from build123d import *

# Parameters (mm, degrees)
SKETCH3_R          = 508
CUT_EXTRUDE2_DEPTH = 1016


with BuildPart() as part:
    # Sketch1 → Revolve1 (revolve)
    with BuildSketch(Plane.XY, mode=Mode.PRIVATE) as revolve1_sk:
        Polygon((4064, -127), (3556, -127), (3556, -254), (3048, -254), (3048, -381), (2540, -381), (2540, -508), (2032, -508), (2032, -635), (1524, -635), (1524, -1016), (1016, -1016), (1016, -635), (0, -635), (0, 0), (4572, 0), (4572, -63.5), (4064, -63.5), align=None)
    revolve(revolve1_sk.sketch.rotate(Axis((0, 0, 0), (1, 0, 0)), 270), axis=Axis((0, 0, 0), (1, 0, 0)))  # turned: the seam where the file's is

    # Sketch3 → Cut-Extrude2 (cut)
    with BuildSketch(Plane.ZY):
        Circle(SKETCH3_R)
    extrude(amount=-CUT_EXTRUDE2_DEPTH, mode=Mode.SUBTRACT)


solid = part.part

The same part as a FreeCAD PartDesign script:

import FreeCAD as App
import Part
import Sketcher

V = App.Vector
Q = App.Units.Quantity


def add_polygon(sketch, points):
    """Adds a closed chain of lines whose ends are joined by coincident constraints."""
    first, n = sketch.GeometryCount, len(points)
    for a, b in zip(points, points[1:] + points[:1]):
        sketch.addGeometry(Part.LineSegment(App.Vector(*a, 0), App.Vector(*b, 0)), False)
    for i in range(n):
        sketch.addConstraint(Sketcher.Constraint("Coincident", first + i, 2, first + (i + 1) % n, 1))

doc = App.newDocument("Part")
body = doc.addObject("PartDesign::Body", "Body")

# Sketch on XY plane
sketch1 = body.newObject("Sketcher::SketchObject", "Sketch")
sketch1.AttachmentSupport = (doc.getObject("XY_Plane"), [""])
sketch1.MapMode = "FlatFace"
add_polygon(sketch1, [(3556, -127), (4064, -127), (4064, -63.5), (4572, -63.5), (4572, 0), (0, 0), (0, -635), (1016, -635), (1016, -1016), (1524, -1016), (1524, -635), (2032, -635), (2032, -508), (2540, -508), (2540, -381), (3048, -381), (3048, -254), (3556, -254)])  # lines 0-17
sketch1.addConstraint(Sketcher.Constraint("Horizontal", 0))
sketch1.addConstraint(Sketcher.Constraint("Vertical", 1))
sketch1.addConstraint(Sketcher.Constraint("Horizontal", 2))
sketch1.addConstraint(Sketcher.Constraint("Vertical", 3))
sketch1.addConstraint(Sketcher.Constraint("Horizontal", 4))
sketch1.addConstraint(Sketcher.Constraint("Vertical", 5))
sketch1.addConstraint(Sketcher.Constraint("Horizontal", 6))
sketch1.addConstraint(Sketcher.Constraint("Vertical", 7))
sketch1.addConstraint(Sketcher.Constraint("Horizontal", 8))
sketch1.addConstraint(Sketcher.Constraint("Vertical", 9))
sketch1.addConstraint(Sketcher.Constraint("Horizontal", 10))
sketch1.addConstraint(Sketcher.Constraint("Vertical", 11))
sketch1.addConstraint(Sketcher.Constraint("Horizontal", 12))
sketch1.addConstraint(Sketcher.Constraint("Vertical", 13))
sketch1.addConstraint(Sketcher.Constraint("Horizontal", 14))
sketch1.addConstraint(Sketcher.Constraint("Vertical", 15))
sketch1.addConstraint(Sketcher.Constraint("Horizontal", 16))
sketch1.addConstraint(Sketcher.Constraint("Vertical", 17))
sketch1.addConstraint(Sketcher.Constraint("Coincident", 4, 2, -1, 1))
sketch1.addConstraint(Sketcher.Constraint("Horizontal", 6, 2, 9, 2))
sketch1.addConstraint(Sketcher.Constraint("Equal", 0, 2))
sketch1.addConstraint(Sketcher.Constraint("Equal", 2, 8))
sketch1.addConstraint(Sketcher.Constraint("Equal", 8, 10))
sketch1.addConstraint(Sketcher.Constraint("Equal", 10, 12))
sketch1.addConstraint(Sketcher.Constraint("Equal", 12, 14))
sketch1.addConstraint(Sketcher.Constraint("Equal", 14, 16))
sketch1.addConstraint(Sketcher.Constraint("Equal", 1, 3))
sketch1.addConstraint(Sketcher.Constraint("Equal", 11, 13))
sketch1.addConstraint(Sketcher.Constraint("Equal", 13, 15))
sketch1.addConstraint(Sketcher.Constraint("Equal", 15, 17))
sketch1.addConstraint(Sketcher.Constraint("DistanceX", 0, 1, 0, 2, Q("20 in")))
sketch1.addConstraint(Sketcher.Constraint("DistanceX", 4, 2, 4, 1, Q("180 in")))
sketch1.addConstraint(Sketcher.Constraint("DistanceY", 5, 2, 5, 1, Q("25 in")))
sketch1.addConstraint(Sketcher.Constraint("DistanceY", 7, 2, 7, 1, Q("15 in")))
sketch1.addConstraint(Sketcher.Constraint("DistanceY", 11, 1, 11, 2, Q("5 in")))
revolution = body.newObject("PartDesign::Revolution", "Revolution")
revolution.Profile = sketch1
revolution.ReferenceAxis = (sketch1, ["H_Axis"])
revolution.Angle = 360

# Sketch on YZ plane
sketch2 = body.newObject("Sketcher::SketchObject", "Sketch001")
sketch2.AttachmentSupport = (doc.getObject("YZ_Plane"), [""])
sketch2.MapMode = "FlatFace"
sketch2.addGeometry(Part.Circle(V(0, 0, 0), V(0, 0, 1), 508), False)
sketch2.addConstraint(Sketcher.Constraint("Coincident", 0, 3, -1, 1))
sketch2.addConstraint(Sketcher.Constraint("Diameter", 0, Q("40 in")))
pocket1 = body.newObject("PartDesign::Pocket", "Pocket")
pocket1.Profile = sketch2
pocket1.Length = Q("40 in")
pocket1.Reversed = True

doc.recompute()
